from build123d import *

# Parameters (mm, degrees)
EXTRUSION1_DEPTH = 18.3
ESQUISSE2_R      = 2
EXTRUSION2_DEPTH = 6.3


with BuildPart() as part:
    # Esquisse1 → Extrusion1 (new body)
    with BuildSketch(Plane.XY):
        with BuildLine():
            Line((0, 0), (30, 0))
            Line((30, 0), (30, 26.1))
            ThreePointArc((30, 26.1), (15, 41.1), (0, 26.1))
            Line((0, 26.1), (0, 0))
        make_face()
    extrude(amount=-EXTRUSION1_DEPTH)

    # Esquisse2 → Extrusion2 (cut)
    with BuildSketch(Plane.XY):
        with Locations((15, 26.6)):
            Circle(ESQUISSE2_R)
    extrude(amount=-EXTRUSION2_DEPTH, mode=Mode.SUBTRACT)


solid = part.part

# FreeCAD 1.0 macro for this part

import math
import FreeCAD as App
import Part
import Sketcher

V = App.Vector
Q = App.Units.Quantity

doc = App.newDocument("Part")
body = doc.addObject("PartDesign::Body", "Body")

# Sketch on XY plane
sketch1 = body.newObject("Sketcher::SketchObject", "Sketch")
sketch1.AttachmentSupport = (doc.getObject("XY_Plane"), [""])
sketch1.MapMode = "FlatFace"
sketch1.addGeometry([
    Part.LineSegment(V(0, 0, 0), V(30, 0, 0)),
    Part.LineSegment(V(30, 0, 0), V(30, 26, 0)),
    Part.ArcOfCircle(Part.Circle(V(15, 26, 0), V(0, 0, 1), 15), math.radians(0), math.radians(180)),
    Part.LineSegment(V(0, 26, 0), V(0, 0, 0)),
], False)
sketch1.addConstraint([
    Sketcher.Constraint("Coincident", 0, 2, 1, 1),
    Sketcher.Constraint("Tangent", 1, 2, 2, 1),
    Sketcher.Constraint("Tangent", 2, 2, 3, 1),
    Sketcher.Constraint("Coincident", 3, 2, 0, 1),
    Sketcher.Constraint("Horizontal", 0),
    Sketcher.Constraint("Vertical", 1),
    Sketcher.Constraint("Vertical", 3),
    Sketcher.Constraint("Coincident", 3, 2, -1, 1),
    Sketcher.Constraint("Radius", 2, Q("15 mm")),
    Sketcher.Constraint("DistanceY", 1, 1, 1, 2, Q("26.1 mm")),
])
pad1 = body.newObject("PartDesign::Pad", "Pad")
pad1.Profile = sketch1
pad1.Length = 18.3
pad1.Reversed = True

# Sketch on XY plane
sketch2 = body.newObject("Sketcher::SketchObject", "Sketch001")
sketch2.AttachmentSupport = (doc.getObject("XY_Plane"), [""])
sketch2.MapMode = "FlatFace"
sketch2.addGeometry(Part.Circle(V(15, 26.6, 0), V(0, 0, 1), 2), False)
sketch2.addConstraint([
    Sketcher.Constraint("Diameter", 0, Q("4 mm")),
    Sketcher.Constraint("DistanceX", -1, 1, 0, 3, Q("15 mm")),
    Sketcher.Constraint("DistanceY", -1, 1, 0, 3, Q("26.6 mm")),
])
pocket1 = body.newObject("PartDesign::Pocket", "Pocket")
pocket1.Profile = sketch2
pocket1.Length = 6.3

doc.recompute()
